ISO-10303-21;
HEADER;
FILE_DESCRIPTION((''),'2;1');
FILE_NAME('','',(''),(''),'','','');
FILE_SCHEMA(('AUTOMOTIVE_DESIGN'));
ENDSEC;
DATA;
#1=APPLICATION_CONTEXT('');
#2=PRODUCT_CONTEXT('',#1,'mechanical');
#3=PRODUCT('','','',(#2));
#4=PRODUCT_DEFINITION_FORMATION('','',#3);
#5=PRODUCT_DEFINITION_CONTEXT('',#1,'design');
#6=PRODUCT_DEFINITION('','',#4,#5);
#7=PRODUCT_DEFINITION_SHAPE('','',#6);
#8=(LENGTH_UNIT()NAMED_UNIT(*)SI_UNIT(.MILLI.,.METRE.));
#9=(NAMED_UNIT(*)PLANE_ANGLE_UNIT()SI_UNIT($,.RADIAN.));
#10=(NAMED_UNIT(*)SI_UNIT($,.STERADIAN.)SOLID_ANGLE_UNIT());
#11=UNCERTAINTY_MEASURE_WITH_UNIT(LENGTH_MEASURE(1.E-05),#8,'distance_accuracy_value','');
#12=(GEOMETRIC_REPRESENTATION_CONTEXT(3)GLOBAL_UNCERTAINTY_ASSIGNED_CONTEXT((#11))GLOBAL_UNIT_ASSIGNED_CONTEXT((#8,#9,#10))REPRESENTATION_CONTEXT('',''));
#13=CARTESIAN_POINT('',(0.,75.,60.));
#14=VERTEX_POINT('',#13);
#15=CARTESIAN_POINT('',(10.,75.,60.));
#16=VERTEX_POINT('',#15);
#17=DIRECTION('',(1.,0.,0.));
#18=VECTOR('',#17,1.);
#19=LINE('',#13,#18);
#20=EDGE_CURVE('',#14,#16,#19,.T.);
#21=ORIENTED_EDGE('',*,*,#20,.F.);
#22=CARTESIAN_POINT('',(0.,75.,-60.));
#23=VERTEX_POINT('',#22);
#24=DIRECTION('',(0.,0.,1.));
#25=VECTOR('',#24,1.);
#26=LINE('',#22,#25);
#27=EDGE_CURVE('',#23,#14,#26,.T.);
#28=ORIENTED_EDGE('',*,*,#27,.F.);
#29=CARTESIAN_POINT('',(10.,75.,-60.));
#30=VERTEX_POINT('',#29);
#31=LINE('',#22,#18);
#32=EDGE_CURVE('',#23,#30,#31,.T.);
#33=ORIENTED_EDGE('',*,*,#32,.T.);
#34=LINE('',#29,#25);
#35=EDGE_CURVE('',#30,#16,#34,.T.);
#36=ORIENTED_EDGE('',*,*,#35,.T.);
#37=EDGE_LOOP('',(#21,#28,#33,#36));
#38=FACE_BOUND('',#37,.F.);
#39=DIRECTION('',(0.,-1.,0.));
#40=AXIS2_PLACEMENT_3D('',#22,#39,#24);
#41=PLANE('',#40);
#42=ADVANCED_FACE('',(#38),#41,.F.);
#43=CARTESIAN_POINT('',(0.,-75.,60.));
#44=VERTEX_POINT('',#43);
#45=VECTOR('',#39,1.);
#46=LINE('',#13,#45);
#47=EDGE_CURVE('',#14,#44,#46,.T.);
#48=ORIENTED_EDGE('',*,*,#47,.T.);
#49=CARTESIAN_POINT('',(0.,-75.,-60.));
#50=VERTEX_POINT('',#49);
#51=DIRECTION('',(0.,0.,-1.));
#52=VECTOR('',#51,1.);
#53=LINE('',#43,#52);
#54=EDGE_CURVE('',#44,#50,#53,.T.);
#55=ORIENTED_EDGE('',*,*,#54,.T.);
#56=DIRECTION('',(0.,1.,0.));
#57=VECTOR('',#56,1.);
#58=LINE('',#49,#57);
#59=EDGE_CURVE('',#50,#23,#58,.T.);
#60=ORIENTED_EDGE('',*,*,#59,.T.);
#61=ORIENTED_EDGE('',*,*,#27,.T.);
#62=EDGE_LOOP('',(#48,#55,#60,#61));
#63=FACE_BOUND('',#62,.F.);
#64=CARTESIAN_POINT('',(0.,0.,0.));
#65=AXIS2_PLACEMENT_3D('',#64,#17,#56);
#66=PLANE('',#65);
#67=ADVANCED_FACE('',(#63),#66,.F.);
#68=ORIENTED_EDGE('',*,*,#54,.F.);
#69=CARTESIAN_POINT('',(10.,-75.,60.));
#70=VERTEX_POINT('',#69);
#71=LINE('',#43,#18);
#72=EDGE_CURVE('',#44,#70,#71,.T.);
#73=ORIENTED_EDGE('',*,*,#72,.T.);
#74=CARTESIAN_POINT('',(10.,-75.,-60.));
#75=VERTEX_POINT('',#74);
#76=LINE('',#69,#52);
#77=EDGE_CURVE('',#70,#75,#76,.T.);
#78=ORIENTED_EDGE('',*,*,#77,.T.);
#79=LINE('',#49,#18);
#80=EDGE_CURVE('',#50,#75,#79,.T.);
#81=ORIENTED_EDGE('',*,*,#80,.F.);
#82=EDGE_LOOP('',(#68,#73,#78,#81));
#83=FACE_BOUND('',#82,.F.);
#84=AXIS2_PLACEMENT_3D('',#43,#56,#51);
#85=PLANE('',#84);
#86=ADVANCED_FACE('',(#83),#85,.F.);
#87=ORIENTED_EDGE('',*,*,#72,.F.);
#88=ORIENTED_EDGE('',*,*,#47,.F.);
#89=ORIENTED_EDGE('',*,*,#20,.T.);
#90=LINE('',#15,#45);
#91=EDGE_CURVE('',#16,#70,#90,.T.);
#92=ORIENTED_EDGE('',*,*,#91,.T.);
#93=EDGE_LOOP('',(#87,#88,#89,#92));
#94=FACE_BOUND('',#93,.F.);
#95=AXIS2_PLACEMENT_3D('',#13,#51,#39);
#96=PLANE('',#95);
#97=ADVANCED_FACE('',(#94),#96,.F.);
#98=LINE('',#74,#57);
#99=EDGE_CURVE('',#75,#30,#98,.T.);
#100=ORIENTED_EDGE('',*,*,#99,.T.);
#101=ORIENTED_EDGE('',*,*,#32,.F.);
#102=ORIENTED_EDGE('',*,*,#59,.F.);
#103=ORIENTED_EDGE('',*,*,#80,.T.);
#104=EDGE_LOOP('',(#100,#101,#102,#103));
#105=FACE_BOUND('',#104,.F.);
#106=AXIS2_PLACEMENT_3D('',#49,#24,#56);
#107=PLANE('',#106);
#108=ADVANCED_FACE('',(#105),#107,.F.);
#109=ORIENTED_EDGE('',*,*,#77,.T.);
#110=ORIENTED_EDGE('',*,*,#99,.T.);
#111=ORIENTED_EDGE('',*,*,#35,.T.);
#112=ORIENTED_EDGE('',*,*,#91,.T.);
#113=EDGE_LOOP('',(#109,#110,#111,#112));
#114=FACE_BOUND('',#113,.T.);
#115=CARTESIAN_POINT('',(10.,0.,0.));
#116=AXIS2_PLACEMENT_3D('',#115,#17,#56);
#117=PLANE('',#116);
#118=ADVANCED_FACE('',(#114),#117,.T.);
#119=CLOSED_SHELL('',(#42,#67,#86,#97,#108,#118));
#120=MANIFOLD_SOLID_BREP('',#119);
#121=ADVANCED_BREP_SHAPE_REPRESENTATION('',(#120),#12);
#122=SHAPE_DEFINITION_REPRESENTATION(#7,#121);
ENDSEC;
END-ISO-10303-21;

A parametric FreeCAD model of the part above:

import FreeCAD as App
import Part
import Sketcher
from FreeCAD import Vector
Q = App.Units.Quantity

doc = App.newDocument("Part")
body = doc.addObject("PartDesign::Body", "Body")

# Sketch on YZ plane
sketch1 = doc.addObject("Sketcher::SketchObject", "Sketch")
body.addObject(sketch1)
sketch1.AttachmentSupport = (doc.YZ_Plane, [""])
sketch1.MapMode = "FlatFace"
sketch1.addGeometry(Part.LineSegment(Vector(-75, 60, 0), Vector(-75, -60, 0)), False)
sketch1.addGeometry(Part.LineSegment(Vector(-75, -60, 0), Vector(75, -60, 0)), False)
sketch1.addGeometry(Part.LineSegment(Vector(75, -60, 0), Vector(75, 60, 0)), False)
sketch1.addGeometry(Part.LineSegment(Vector(75, 60, 0), Vector(-75, 60, 0)), False)
sketch1.addConstraint(Sketcher.Constraint("Coincident", 0, 2, 1, 1))
sketch1.addConstraint(Sketcher.Constraint("Coincident", 1, 2, 2, 1))
sketch1.addConstraint(Sketcher.Constraint("Coincident", 2, 2, 3, 1))
sketch1.addConstraint(Sketcher.Constraint("Coincident", 3, 2, 0, 1))
sketch1.addConstraint(Sketcher.Constraint("Vertical", 0))
sketch1.addConstraint(Sketcher.Constraint("Horizontal", 1))
sketch1.addConstraint(Sketcher.Constraint("Vertical", 2))
sketch1.addConstraint(Sketcher.Constraint("Horizontal", 3))
sketch1.addConstraint(Sketcher.Constraint("Symmetric", 0, 2, 2, 2, -1, 1))
sketch1.addConstraint(Sketcher.Constraint("DistanceX", 1, 1, 1, 2, Q("150 mm")))
sketch1.addConstraint(Sketcher.Constraint("DistanceY", 0, 2, 0, 1, Q("120 mm")))
pad1 = doc.addObject("PartDesign::Pad", "Pad")
body.addObject(pad1)
pad1.Profile = sketch1
pad1.Length = 10

doc.recompute()
